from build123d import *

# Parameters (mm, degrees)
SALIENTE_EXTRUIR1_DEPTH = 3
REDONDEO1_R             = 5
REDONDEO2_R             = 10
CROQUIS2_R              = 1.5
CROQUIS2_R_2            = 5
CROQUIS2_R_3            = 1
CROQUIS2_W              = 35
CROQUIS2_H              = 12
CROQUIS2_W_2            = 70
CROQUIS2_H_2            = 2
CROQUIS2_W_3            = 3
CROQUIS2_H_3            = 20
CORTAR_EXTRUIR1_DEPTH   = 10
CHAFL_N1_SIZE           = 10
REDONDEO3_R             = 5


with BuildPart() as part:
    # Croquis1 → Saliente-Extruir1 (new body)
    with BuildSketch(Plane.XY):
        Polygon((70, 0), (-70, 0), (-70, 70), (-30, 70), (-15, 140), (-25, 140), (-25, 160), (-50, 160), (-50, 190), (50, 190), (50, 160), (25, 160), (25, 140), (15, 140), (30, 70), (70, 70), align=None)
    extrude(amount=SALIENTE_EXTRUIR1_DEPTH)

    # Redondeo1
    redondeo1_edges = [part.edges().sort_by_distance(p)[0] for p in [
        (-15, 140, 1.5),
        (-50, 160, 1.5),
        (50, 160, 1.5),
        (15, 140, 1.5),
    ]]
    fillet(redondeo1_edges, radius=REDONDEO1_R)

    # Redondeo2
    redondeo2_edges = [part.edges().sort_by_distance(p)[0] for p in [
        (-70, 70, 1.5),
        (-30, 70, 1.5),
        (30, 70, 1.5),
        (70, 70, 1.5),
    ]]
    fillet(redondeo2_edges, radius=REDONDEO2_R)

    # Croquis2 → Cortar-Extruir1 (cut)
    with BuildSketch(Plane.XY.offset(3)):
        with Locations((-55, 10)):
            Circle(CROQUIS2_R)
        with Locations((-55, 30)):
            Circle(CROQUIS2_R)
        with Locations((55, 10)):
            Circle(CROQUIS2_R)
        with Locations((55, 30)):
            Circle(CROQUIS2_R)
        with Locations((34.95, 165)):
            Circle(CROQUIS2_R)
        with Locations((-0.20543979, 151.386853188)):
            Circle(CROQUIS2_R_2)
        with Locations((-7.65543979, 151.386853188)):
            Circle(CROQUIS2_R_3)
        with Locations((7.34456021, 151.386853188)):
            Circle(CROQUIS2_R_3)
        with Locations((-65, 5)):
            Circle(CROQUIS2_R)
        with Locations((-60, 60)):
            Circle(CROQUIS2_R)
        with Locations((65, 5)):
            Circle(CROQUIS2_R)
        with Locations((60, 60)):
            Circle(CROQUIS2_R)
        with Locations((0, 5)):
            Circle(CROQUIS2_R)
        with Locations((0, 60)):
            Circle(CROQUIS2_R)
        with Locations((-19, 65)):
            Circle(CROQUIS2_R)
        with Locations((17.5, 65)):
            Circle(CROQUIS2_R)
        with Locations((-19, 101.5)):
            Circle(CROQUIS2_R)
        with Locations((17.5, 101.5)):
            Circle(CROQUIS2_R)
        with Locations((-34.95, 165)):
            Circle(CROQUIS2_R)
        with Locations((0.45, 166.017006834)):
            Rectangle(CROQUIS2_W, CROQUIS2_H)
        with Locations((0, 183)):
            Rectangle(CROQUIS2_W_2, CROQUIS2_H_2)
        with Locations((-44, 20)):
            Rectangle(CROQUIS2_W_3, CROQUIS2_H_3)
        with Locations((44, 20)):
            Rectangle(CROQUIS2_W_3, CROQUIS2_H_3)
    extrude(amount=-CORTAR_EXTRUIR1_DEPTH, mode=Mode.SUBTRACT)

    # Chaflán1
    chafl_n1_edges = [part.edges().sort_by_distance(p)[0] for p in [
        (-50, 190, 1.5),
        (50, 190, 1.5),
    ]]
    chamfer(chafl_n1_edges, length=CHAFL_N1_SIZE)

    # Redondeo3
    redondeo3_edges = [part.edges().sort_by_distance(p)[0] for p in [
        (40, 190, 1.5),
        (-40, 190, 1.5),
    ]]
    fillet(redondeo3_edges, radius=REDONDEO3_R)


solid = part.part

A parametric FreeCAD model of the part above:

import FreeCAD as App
import Part
import Sketcher
from FreeCAD import Vector


def edges_at(feature, points):
    """Names of the edges that pass closest to the given points."""
    edges = feature.Shape.Edges
    near = lambda p: min(range(len(edges)), key=lambda i: edges[i].distToShape(Part.Vertex(*p))[0])
    return sorted({f"Edge{near(p) + 1}" for p in points})


def add_polygon(sketch, points):
    """Adds a closed chain of lines whose ends are joined by coincident constraints."""
    first, n = sketch.GeometryCount, len(points)
    for a, b in zip(points, points[1:] + points[:1]):
        sketch.addGeometry(Part.LineSegment(App.Vector(*a, 0), App.Vector(*b, 0)), False)
    for i in range(n):
        sketch.addConstraint(Sketcher.Constraint("Coincident", first + i, 2, first + (i + 1) % n, 1))

doc = App.newDocument("Part")
params = doc.addObject("Spreadsheet::Sheet", "Params")
for row, (alias, value) in enumerate([
    ("sketch1_width", "140 mm"),
    ("sketch1_width2", "40 mm"),
    ("sketch1_width3", "10 mm"),
    ("sketch1_width4", "25 mm"),
    ("sketch1_width5", "100 mm"),
    ("pad1_length", "3 mm"),
    ("fillet_radius", "5 mm"),
    ("fillet2_radius", "10 mm"),
    ("sketch2_diameter", "3 mm"),
    ("sketch2_diameter2", "10 mm"),
    ("sketch2_diameter3", "2 mm"),
    ("sketch2_width", "35 mm"),
    ("sketch2_width2", "70 mm"),
    ("pocket1_length", "10 mm"),
    ("chamfer_size", "10 mm"),
    ("fillet3_radius", "5 mm"),
], start=1):
    params.set(f"A{row}", alias)
    params.set(f"B{row}", "=" + value)
    params.setAlias(f"B{row}", alias)

body = doc.addObject("PartDesign::Body", "Body")

sketch1 = doc.addObject("Sketcher::SketchObject", "Sketch")
body.addObject(sketch1)
sketch1.AttachmentSupport = (doc.XY_Plane, [""])
sketch1.MapMode = "FlatFace"
add_polygon(sketch1, [(-70, 0), (70, 0), (70, 70), (30, 70), (15, 140), (25, 140), (25, 160), (50, 160), (50, 190), (-50, 190), (-50, 160), (-25, 160), (-25, 140), (-15, 140), (-30, 70), (-70, 70)])
sketch1.addConstraint([
    Sketcher.Constraint("Horizontal", 0),
    Sketcher.Constraint("Vertical", 1),
    Sketcher.Constraint("Horizontal", 2),
    Sketcher.Constraint("Horizontal", 4),
    Sketcher.Constraint("Vertical", 5),
    Sketcher.Constraint("Horizontal", 6),
    Sketcher.Constraint("Vertical", 7),
    Sketcher.Constraint("Horizontal", 8),
    Sketcher.Constraint("Vertical", 9),
    Sketcher.Constraint("Horizontal", 10),
    Sketcher.Constraint("Vertical", 11),
    Sketcher.Constraint("Horizontal", 12),
    Sketcher.Constraint("Horizontal", 14),
    Sketcher.Constraint("Vertical", 15),
    Sketcher.Constraint("Symmetric", 0, 2, 15, 2, -1, 1),
    Sketcher.Constraint("Symmetric", 6, 2, 9, 2, -2),
    Sketcher.Constraint("Symmetric", 4, 2, 11, 2, -2),
    Sketcher.Constraint("Symmetric", 2, 2, 13, 2, -2),
    Sketcher.Constraint("Equal", 4, 12),
    Sketcher.Constraint("DistanceX", 0, 1, 0, 2, 140.0),
    Sketcher.Constraint("DistanceX", 2, 2, 2, 1, 40.0),
    Sketcher.Constraint("DistanceX", 4, 1, 4, 2, 10.0),
    Sketcher.Constraint("DistanceX", 6, 1, 6, 2, 25.0),
    Sketcher.Constraint("DistanceX", 8, 2, 8, 1, 100.0),
    Sketcher.Constraint("DistanceY", 1, 1, 1, 2, 70.0),
    Sketcher.Constraint("DistanceY", 5, 1, 5, 2, 20.0),
    Sketcher.Constraint("DistanceY", 7, 1, 7, 2, 30.0),
    Sketcher.Constraint("DistanceY", -1, 1, 3, 2, 140.0),
])
sketch1.setExpression("Constraints[35]", "Params.sketch1_width")
sketch1.setExpression("Constraints[36]", "Params.sketch1_width2")
sketch1.setExpression("Constraints[37]", "Params.sketch1_width3")
sketch1.setExpression("Constraints[38]", "Params.sketch1_width4")
sketch1.setExpression("Constraints[39]", "Params.sketch1_width5")
pad1 = doc.addObject("PartDesign::Pad", "Pad")
body.addObject(pad1)
pad1.Profile = sketch1
pad1.setExpression("Length", "Params.pad1_length")
doc.recompute()

fillet = doc.addObject("PartDesign::Fillet", "Fillet")
body.addObject(fillet)
fillet.Base = (pad1, edges_at(pad1, [
    (-15, 140, 1.5),
    (-50, 160, 1.5),
    (50, 160, 1.5),
    (15, 140, 1.5),
]))
fillet.setExpression("Radius", "Params.fillet_radius")
doc.recompute()

fillet2 = doc.addObject("PartDesign::Fillet", "Fillet001")
body.addObject(fillet2)
fillet2.Base = (fillet, edges_at(fillet, [
    (-70, 70, 1.5),
    (-30, 70, 1.5),
    (30, 70, 1.5),
    (70, 70, 1.5),
]))
fillet2.setExpression("Radius", "Params.fillet2_radius")

sketch2 = doc.addObject("Sketcher::SketchObject", "Sketch001")
body.addObject(sketch2)
sketch2.AttachmentSupport = (doc.XY_Plane, [""])
sketch2.MapMode = "FlatFace"
sketch2.AttachmentOffset = App.Placement(Vector(0, 0, 3), App.Rotation())
sketch2.addGeometry(Part.Circle(Vector(-55, 10, 0), Vector(0, 0, 1), 1.5), False)
sketch2.addGeometry(Part.Circle(Vector(-55, 30, 0), Vector(0, 0, 1), 1.5), False)
sketch2.addGeometry(Part.Circle(Vector(55, 10, 0), Vector(0, 0, 1), 1.5), False)
sketch2.addGeometry(Part.Circle(Vector(55, 30, 0), Vector(0, 0, 1), 1.5), False)
sketch2.addGeometry(Part.Circle(Vector(34.95, 165, 0), Vector(0, 0, 1), 1.5), False)
sketch2.addGeometry(Part.Circle(Vector(-0.20544, 151.386853, 0), Vector(0, 0, 1), 5), False)
sketch2.addGeometry(Part.Circle(Vector(-7.65544, 151.386853, 0), Vector(0, 0, 1), 1), False)
sketch2.addGeometry(Part.Circle(Vector(7.34456, 151.386853, 0), Vector(0, 0, 1), 1), False)
sketch2.addGeometry(Part.Circle(Vector(-65, 5, 0), Vector(0, 0, 1), 1.5), False)
sketch2.addGeometry(Part.Circle(Vector(-60, 60, 0), Vector(0, 0, 1), 1.5), False)
sketch2.addGeometry(Part.Circle(Vector(65, 5, 0), Vector(0, 0, 1), 1.5), False)
sketch2.addGeometry(Part.Circle(Vector(60, 60, 0), Vector(0, 0, 1), 1.5), False)
sketch2.addGeometry(Part.Circle(Vector(0, 5, 0), Vector(0, 0, 1), 1.5), False)
sketch2.addGeometry(Part.Circle(Vector(0, 60, 0), Vector(0, 0, 1), 1.5), False)
sketch2.addGeometry(Part.Circle(Vector(-19, 65, 0), Vector(0, 0, 1), 1.5), False)
sketch2.addGeometry(Part.Circle(Vector(17.5, 65, 0), Vector(0, 0, 1), 1.5), False)
sketch2.addGeometry(Part.Circle(Vector(-19, 101.5, 0), Vector(0, 0, 1), 1.5), False)
sketch2.addGeometry(Part.Circle(Vector(17.5, 101.5, 0), Vector(0, 0, 1), 1.5), False)
sketch2.addGeometry(Part.Circle(Vector(-34.95, 165, 0), Vector(0, 0, 1), 1.5), False)
add_polygon(sketch2, [(-17.05, 172.017007), (-17.05, 160.017007), (17.95, 160.017007), (17.95, 172.017007)])
add_polygon(sketch2, [(-35, 184), (-35, 182), (35, 182), (35, 184)])
add_polygon(sketch2, [(-45.5, 30), (-45.5, 10), (-42.5, 10), (-42.5, 30)])
add_polygon(sketch2, [(42.5, 30), (42.5, 10), (45.5, 10), (45.5, 30)])
sketch2.addConstraint([
    Sketcher.Constraint("Vertical", 19),
    Sketcher.Constraint("Horizontal", 20),
    Sketcher.Constraint("Vertical", 21),
    Sketcher.Constraint("Horizontal", 22),
    Sketcher.Constraint("Vertical", 23),
    Sketcher.Constraint("Horizontal", 24),
    Sketcher.Constraint("Vertical", 25),
    Sketcher.Constraint("Horizontal", 26),
    Sketcher.Constraint("Vertical", 27),
    Sketcher.Constraint("Horizontal", 28),
    Sketcher.Constraint("Vertical", 29),
    Sketcher.Constraint("Horizontal", 30),
    Sketcher.Constraint("Vertical", 31),
    Sketcher.Constraint("Horizontal", 32),
    Sketcher.Constraint("Vertical", 33),
    Sketcher.Constraint("Horizontal", 34),
    Sketcher.Constraint("Equal", 0, 1),
    Sketcher.Constraint("Equal", 1, 2),
    Sketcher.Constraint("Equal", 2, 3),
    Sketcher.Constraint("Equal", 3, 4),
    Sketcher.Constraint("Equal", 6, 7),
    Sketcher.Constraint("Equal", 4, 8),
    Sketcher.Constraint("Equal", 8, 9),
    Sketcher.Constraint("Equal", 9, 10),
    Sketcher.Constraint("Equal", 10, 11),
    Sketcher.Constraint("Equal", 11, 12),
    Sketcher.Constraint("Equal", 12, 13),
    Sketcher.Constraint("Equal", 13, 14),
    Sketcher.Constraint("Equal", 14, 15),
    Sketcher.Constraint("Equal", 15, 16),
    Sketcher.Constraint("Equal", 16, 17),
    Sketcher.Constraint("Equal", 17, 18),
    Sketcher.Constraint("Symmetric", 0, 3, 2, 3, -2),
    Sketcher.Constraint("Symmetric", 1, 3, 3, 3, -2),
    Sketcher.Constraint("Symmetric", 8, 3, 10, 3, -2),
    Sketcher.Constraint("Symmetric", 9, 3, 11, 3, -2),
    Sketcher.Constraint("Symmetric", 4, 3, 18, 3, -2),
    Sketcher.Constraint("Symmetric", 28, 2, 31, 2, -2),
    Sketcher.Constraint("Symmetric", 30, 2, 33, 2, -2),
    Sketcher.Constraint("PointOnObject", 12, 3, -2),
    Sketcher.Constraint("PointOnObject", 13, 3, -2),
    Sketcher.Constraint("Horizontal", 5, 3, 6, 3),
    Sketcher.Constraint("Horizontal", 6, 3, 7, 3),
    Sketcher.Constraint("Horizontal", 10, 3, 12, 3),
    Sketcher.Constraint("Horizontal", 11, 3, 13, 3),
    Sketcher.Constraint("Horizontal", 14, 3, 15, 3),
    Sketcher.Constraint("Horizontal", 16, 3, 17, 3),
    Sketcher.Constraint("Horizontal", 2, 3, 27, 2),
    Sketcher.Constraint("Horizontal", 3, 3, 29, 2),
    Sketcher.Constraint("Vertical", 0, 3, 1, 3),
    Sketcher.Constraint("Vertical", 14, 3, 16, 3),
    Sketcher.Constraint("Vertical", 15, 3, 17, 3),
    Sketcher.Constraint("Diameter", 0, 3.0),
    Sketcher.Constraint("Diameter", 5, 10.0),
    Sketcher.Constraint("Diameter", 6, 2.0),
    Sketcher.Constraint("DistanceX", 20, 1, 20, 2, 35.0),
    Sketcher.Constraint("DistanceX", 24, 1, 24, 2, 70.0),
    Sketcher.Constraint("DistanceX", 28, 1, 28, 2, 3.0),
    Sketcher.Constraint("DistanceY", 19, 2, 19, 1, 12.0),
    Sketcher.Constraint("DistanceY", 23, 2, 23, 1, 2.0),
    Sketcher.Constraint("DistanceY", 27, 2, 27, 1, 20.0),
    Sketcher.Constraint("DistanceX", 0, 3, -1, 1, 55.0),
    Sketcher.Constraint("DistanceY", -1, 1, 0, 3, 10.0),
    Sketcher.Constraint("DistanceY", -1, 1, 4, 3, 165.0),
    Sketcher.Constraint("DistanceX", 8, 3, -1, 1, 65.0),
    Sketcher.Constraint("DistanceY", -1, 1, 8, 3, 5.0),
    Sketcher.Constraint("DistanceX", 9, 3, -1, 1, 60.0),
    Sketcher.Constraint("DistanceY", -1, 1, 9, 3, 60.0),
    Sketcher.Constraint("DistanceX", 14, 3, -1, 1, 19.0),
    Sketcher.Constraint("DistanceY", -1, 1, 14, 3, 65.0),
    Sketcher.Constraint("DistanceX", 23, 2, -1, 1, 35.0),
    Sketcher.Constraint("DistanceY", -1, 1, 23, 2, 182.0),
    Sketcher.Constraint("DistanceX", 6, 3, 7, 3, 15.0),
    Sketcher.Constraint("DistanceX", 19, 2, 4, 3, 52.0),
    Sketcher.Constraint("DistanceX", -1, 1, 15, 3, 17.5),
    Sketcher.Constraint("DistanceY", -1, 1, 16, 3, 101.5),
    Sketcher.Constraint("DistanceX", 27, 2, -1, 1, 45.5),
    Sketcher.Constraint("DistanceX", 18, 3, 4, 3, 69.9),
    Sketcher.Constraint("DistanceX", 6, 3, 5, 3, 7.45),
    Sketcher.Constraint("DistanceX", 5, 3, -1, 1, 0.20544),
    Sketcher.Constraint("DistanceY", -1, 1, 5, 3, 151.386853),
    Sketcher.Constraint("DistanceY", -1, 1, 19, 2, 160.017007),
])
sketch2.setExpression("Constraints[68]", "Params.sketch2_diameter")
sketch2.setExpression("Constraints[69]", "Params.sketch2_diameter2")
sketch2.setExpression("Constraints[70]", "Params.sketch2_diameter3")
sketch2.setExpression("Constraints[71]", "Params.sketch2_width")
sketch2.setExpression("Constraints[72]", "Params.sketch2_width2")
pocket1 = doc.addObject("PartDesign::Pocket", "Pocket")
body.addObject(pocket1)
pocket1.Profile = sketch2
pocket1.setExpression("Length", "Params.pocket1_length")
doc.recompute()

chamfer = doc.addObject("PartDesign::Chamfer", "Chamfer")
body.addObject(chamfer)
chamfer.Base = (pocket1, edges_at(pocket1, [(-50, 190, 1.5), (50, 190, 1.5)]))
chamfer.setExpression("Size", "Params.chamfer_size")
doc.recompute()

fillet3 = doc.addObject("PartDesign::Fillet", "Fillet002")
body.addObject(fillet3)
fillet3.Base = (chamfer, edges_at(chamfer, [(40, 190, 1.5), (-40, 190, 1.5)]))
fillet3.setExpression("Radius", "Params.fillet3_radius")

doc.recompute()
